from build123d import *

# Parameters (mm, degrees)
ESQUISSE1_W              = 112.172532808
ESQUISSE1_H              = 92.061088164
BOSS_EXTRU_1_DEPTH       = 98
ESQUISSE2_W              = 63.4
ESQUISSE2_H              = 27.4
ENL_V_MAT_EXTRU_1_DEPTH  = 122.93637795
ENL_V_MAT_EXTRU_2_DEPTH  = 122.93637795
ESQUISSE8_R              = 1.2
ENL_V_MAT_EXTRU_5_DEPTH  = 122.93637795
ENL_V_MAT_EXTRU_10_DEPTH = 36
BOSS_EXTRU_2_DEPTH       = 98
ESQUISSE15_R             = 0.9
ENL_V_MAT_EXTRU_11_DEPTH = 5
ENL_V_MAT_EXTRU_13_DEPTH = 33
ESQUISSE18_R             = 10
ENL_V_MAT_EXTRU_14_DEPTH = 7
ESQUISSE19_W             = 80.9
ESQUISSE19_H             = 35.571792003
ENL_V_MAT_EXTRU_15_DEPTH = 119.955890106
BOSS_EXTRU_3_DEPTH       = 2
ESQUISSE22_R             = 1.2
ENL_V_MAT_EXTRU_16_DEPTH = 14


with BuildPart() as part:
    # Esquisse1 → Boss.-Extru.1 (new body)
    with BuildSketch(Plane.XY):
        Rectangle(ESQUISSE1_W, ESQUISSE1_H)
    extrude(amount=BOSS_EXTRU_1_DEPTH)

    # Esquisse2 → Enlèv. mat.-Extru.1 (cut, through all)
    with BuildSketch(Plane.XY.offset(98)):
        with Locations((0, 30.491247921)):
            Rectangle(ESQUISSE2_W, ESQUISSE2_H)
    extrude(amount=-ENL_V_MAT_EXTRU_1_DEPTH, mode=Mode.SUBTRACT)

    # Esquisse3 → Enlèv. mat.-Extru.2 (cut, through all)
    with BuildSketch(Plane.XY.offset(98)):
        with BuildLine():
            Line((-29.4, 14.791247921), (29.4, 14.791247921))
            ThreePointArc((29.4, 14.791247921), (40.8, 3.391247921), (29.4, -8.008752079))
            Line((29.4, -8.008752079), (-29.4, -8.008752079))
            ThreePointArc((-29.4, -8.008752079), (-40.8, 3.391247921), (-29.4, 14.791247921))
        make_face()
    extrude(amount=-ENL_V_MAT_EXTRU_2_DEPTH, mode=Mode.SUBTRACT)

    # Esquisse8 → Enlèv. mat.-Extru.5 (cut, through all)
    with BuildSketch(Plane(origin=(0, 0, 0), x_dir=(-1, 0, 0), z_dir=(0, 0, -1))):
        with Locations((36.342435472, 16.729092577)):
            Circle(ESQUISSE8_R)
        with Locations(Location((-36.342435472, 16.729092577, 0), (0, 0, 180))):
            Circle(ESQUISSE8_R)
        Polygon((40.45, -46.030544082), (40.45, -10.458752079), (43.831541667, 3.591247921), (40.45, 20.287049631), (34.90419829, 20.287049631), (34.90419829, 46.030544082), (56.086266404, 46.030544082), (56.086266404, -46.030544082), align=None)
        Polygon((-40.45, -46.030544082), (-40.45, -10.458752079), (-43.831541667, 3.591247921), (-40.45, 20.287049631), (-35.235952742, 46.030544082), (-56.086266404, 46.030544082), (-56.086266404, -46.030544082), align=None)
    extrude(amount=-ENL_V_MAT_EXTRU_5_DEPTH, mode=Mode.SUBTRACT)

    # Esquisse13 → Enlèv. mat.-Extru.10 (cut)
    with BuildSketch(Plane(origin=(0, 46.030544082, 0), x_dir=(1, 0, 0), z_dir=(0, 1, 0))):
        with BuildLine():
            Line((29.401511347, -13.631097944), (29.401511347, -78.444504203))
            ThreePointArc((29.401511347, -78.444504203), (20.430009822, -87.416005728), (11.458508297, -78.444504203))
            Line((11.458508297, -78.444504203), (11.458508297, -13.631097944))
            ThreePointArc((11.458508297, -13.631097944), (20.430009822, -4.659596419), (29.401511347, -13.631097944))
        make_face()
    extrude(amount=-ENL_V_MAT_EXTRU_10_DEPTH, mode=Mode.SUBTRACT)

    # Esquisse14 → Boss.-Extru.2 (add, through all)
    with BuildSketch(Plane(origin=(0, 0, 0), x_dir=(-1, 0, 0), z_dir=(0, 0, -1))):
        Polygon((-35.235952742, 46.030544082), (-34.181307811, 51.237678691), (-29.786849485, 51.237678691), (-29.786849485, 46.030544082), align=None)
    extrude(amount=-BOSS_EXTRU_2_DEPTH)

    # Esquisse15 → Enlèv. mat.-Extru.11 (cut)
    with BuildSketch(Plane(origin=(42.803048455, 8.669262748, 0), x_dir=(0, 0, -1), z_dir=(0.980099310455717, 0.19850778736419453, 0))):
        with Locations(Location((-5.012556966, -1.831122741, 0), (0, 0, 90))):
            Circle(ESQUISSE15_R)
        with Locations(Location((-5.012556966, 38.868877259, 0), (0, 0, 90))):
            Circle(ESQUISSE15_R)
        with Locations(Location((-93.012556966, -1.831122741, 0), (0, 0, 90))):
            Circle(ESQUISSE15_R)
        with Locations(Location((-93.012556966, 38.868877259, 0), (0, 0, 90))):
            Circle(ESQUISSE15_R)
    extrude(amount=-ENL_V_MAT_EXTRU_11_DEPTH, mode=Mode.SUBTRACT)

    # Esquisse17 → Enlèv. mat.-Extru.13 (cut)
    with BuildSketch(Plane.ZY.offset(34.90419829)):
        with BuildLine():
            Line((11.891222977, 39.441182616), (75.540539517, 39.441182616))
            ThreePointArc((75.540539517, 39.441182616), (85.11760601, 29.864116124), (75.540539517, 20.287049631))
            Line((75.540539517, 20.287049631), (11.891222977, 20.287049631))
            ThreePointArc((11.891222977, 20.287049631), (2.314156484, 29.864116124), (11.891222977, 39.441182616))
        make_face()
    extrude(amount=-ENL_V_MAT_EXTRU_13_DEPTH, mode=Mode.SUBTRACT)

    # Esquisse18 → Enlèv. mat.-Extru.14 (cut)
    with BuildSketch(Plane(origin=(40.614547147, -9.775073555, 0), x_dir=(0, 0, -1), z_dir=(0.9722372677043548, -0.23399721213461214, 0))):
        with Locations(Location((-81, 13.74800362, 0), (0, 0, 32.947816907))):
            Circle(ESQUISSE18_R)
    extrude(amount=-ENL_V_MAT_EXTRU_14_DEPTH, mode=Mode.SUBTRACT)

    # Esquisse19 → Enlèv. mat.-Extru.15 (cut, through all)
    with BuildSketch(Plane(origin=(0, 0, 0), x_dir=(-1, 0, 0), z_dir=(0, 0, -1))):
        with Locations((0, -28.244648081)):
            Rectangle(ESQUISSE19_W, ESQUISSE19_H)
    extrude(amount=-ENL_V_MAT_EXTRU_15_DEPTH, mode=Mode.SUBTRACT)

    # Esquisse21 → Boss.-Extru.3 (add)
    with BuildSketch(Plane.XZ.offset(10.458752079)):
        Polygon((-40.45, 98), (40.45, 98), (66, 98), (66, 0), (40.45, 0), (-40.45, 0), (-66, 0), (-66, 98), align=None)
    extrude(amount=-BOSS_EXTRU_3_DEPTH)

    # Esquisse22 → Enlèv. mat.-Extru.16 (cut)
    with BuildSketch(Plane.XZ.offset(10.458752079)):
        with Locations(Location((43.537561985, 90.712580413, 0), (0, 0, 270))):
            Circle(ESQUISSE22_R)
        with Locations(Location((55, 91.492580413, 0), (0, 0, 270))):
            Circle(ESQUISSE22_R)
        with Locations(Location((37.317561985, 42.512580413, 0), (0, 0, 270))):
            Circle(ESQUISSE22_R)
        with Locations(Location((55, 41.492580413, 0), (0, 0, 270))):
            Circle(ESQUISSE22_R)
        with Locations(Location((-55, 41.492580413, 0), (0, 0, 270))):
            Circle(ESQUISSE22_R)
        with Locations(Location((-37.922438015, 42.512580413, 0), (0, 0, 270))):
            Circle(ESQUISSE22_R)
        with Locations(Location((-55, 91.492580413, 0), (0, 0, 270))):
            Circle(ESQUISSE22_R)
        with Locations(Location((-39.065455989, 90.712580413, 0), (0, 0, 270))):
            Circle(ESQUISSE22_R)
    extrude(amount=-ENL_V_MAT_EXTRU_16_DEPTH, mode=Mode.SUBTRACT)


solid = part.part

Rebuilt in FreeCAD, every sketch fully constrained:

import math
import FreeCAD as App
import Part
import Sketcher

doc = App.newDocument("Part")
body = doc.addObject("PartDesign::Body", "Body")

sketch1 = body.newObject("Sketcher::SketchObject", "Sketch")
sketch1.AttachmentSupport = (doc.getObject("XY_Plane"), [""])
sketch1.MapMode = "FlatFace"
sketch1.addGeometry(Part.LineSegment(App.Vector(-56, 46, 0), App.Vector(-56, -46, 0)), False)
sketch1.addGeometry(Part.LineSegment(App.Vector(-56, -46, 0), App.Vector(56, -46, 0)), False)
sketch1.addGeometry(Part.LineSegment(App.Vector(56, -46, 0), App.Vector(56, 46, 0)), False)
sketch1.addGeometry(Part.LineSegment(App.Vector(56, 46, 0), App.Vector(-56, 46, 0)), False)
sketch1.addConstraint(Sketcher.Constraint("Coincident", 0, 2, 1, 1))
sketch1.addConstraint(Sketcher.Constraint("Coincident", 1, 2, 2, 1))
sketch1.addConstraint(Sketcher.Constraint("Coincident", 2, 2, 3, 1))
sketch1.addConstraint(Sketcher.Constraint("Coincident", 3, 2, 0, 1))
sketch1.addConstraint(Sketcher.Constraint("Vertical", 0))
sketch1.addConstraint(Sketcher.Constraint("Horizontal", 1))
sketch1.addConstraint(Sketcher.Constraint("Vertical", 2))
sketch1.addConstraint(Sketcher.Constraint("Horizontal", 3))
sketch1.addConstraint(Sketcher.Constraint("Symmetric", 0, 2, 2, 2, -1, 1))
sketch1.addConstraint(Sketcher.Constraint("DistanceY", 0, 2, 0, 1, 92.061088))
sketch1.addConstraint(Sketcher.Constraint("DistanceX", 1, 1, 1, 2, 112.172533))
pad1 = body.newObject("PartDesign::Pad", "Pad")
pad1.Profile = sketch1
pad1.Length = 98

sketch2 = body.newObject("Sketcher::SketchObject", "Sketch001")
sketch2.AttachmentSupport = (doc.getObject("XY_Plane"), [""])
sketch2.MapMode = "FlatFace"
sketch2.AttachmentOffset = App.Placement(App.Vector(0, 0, 98), App.Rotation())
sketch2.addGeometry(Part.LineSegment(App.Vector(-32, 44, 0), App.Vector(-32, 17, 0)), False)
sketch2.addGeometry(Part.LineSegment(App.Vector(-32, 17, 0), App.Vector(32, 17, 0)), False)
sketch2.addGeometry(Part.LineSegment(App.Vector(32, 17, 0), App.Vector(32, 44, 0)), False)
sketch2.addGeometry(Part.LineSegment(App.Vector(32, 44, 0), App.Vector(-32, 44, 0)), False)
sketch2.addConstraint(Sketcher.Constraint("Coincident", 0, 2, 1, 1))
sketch2.addConstraint(Sketcher.Constraint("Coincident", 1, 2, 2, 1))
sketch2.addConstraint(Sketcher.Constraint("Coincident", 2, 2, 3, 1))
sketch2.addConstraint(Sketcher.Constraint("Coincident", 3, 2, 0, 1))
sketch2.addConstraint(Sketcher.Constraint("Vertical", 0))
sketch2.addConstraint(Sketcher.Constraint("Horizontal", 1))
sketch2.addConstraint(Sketcher.Constraint("Vertical", 2))
sketch2.addConstraint(Sketcher.Constraint("Horizontal", 3))
sketch2.addConstraint(Sketcher.Constraint("DistanceX", 1, 1, 1, 2, 63.4))
sketch2.addConstraint(Sketcher.Constraint("DistanceY", 0, 2, 0, 1, 27.4))
sketch2.addConstraint(Sketcher.Constraint("DistanceX", 0, 2, -1, 1, 31.7))
sketch2.addConstraint(Sketcher.Constraint("DistanceY", -1, 1, 0, 2, 16.791248))
pocket1 = body.newObject("PartDesign::Pocket", "Pocket")
pocket1.Profile = sketch2
pocket1.Type = "ThroughAll"

sketch3 = body.newObject("Sketcher::SketchObject", "Sketch002")
sketch3.AttachmentSupport = (doc.getObject("XY_Plane"), [""])
sketch3.MapMode = "FlatFace"
sketch3.AttachmentOffset = App.Placement(App.Vector(0, 0, 98), App.Rotation())
sketch3.addGeometry(Part.LineSegment(App.Vector(29, 15, 0), App.Vector(-29, 15, 0)), False)
sketch3.addGeometry(Part.ArcOfCircle(Part.Circle(App.Vector(-29, 3, 0), App.Vector(0, 0, 1), 11), math.radians(90), math.radians(270)), False)
sketch3.addGeometry(Part.LineSegment(App.Vector(-29, -8, 0), App.Vector(29, -8, 0)), False)
sketch3.addGeometry(Part.ArcOfCircle(Part.Circle(App.Vector(29, 3, 0), App.Vector(0, 0, 1), 11), math.radians(-90), math.radians(90)), False)
sketch3.addConstraint(Sketcher.Constraint("Tangent", 0, 2, 1, 1))
sketch3.addConstraint(Sketcher.Constraint("Tangent", 1, 2, 2, 1))
sketch3.addConstraint(Sketcher.Constraint("Tangent", 2, 2, 3, 1))
sketch3.addConstraint(Sketcher.Constraint("Tangent", 3, 2, 0, 1))
sketch3.addConstraint(Sketcher.Constraint("Horizontal", 0))
sketch3.addConstraint(Sketcher.Constraint("Horizontal", 2))
sketch3.addConstraint(Sketcher.Constraint("Radius", 1, 11.4))
sketch3.addConstraint(Sketcher.Constraint("DistanceX", 0, 2, 0, 1, 58.8))
sketch3.addConstraint(Sketcher.Constraint("DistanceX", 1, 3, -1, 1, 29.4))
sketch3.addConstraint(Sketcher.Constraint("DistanceY", -1, 1, 1, 3, 3.391248))
pocket2 = body.newObject("PartDesign::Pocket", "Pocket001")
pocket2.Profile = sketch3
pocket2.Type = "ThroughAll"

sketch4 = body.newObject("Sketcher::SketchObject", "Sketch003")
sketch4.AttachmentSupport = (doc.getObject("XY_Plane"), [""])
sketch4.MapMode = "FlatFace"
sketch4.addGeometry(Part.Circle(App.Vector(-36.3, 16.7, 0), App.Vector(0, 0, 1), 1.2), False)
sketch4.addGeometry(Part.Circle(App.Vector(36.3, 16.7, 0), App.Vector(0, 0, 1), 1.2), False)
sketch4.addGeometry(Part.LineSegment(App.Vector(-40.5, -10.5, 0), App.Vector(-40.5, -46, 0)), False)
sketch4.addGeometry(Part.LineSegment(App.Vector(-40.5, -46, 0), App.Vector(-56.1, -46, 0)), False)
sketch4.addGeometry(Part.LineSegment(App.Vector(-56.1, -46, 0), App.Vector(-56.1, 46, 0)), False)
sketch4.addGeometry(Part.LineSegment(App.Vector(-56.1, 46, 0), App.Vector(-34.9, 46, 0)), False)
sketch4.addGeometry(Part.LineSegment(App.Vector(-34.9, 46, 0), App.Vector(-34.9, 20.3, 0)), False)
sketch4.addGeometry(Part.LineSegment(App.Vector(-34.9, 20.3, 0), App.Vector(-40.5, 20.3, 0)), False)
sketch4.addGeometry(Part.LineSegment(App.Vector(-40.5, 20.3, 0), App.Vector(-43.8, 3.6, 0)), False)
sketch4.addGeometry(Part.LineSegment(App.Vector(-43.8, 3.6, 0), App.Vector(-40.5, -10.5, 0)), False)
sketch4.addGeometry(Part.LineSegment(App.Vector(40.5, -46, 0), App.Vector(40.5, -10.5, 0)), False)
sketch4.addGeometry(Part.LineSegment(App.Vector(40.5, -10.5, 0), App.Vector(43.8, 3.6, 0)), False)
sketch4.addGeometry(Part.LineSegment(App.Vector(43.8, 3.6, 0), App.Vector(40.5, 20.3, 0)), False)
sketch4.addGeometry(Part.LineSegment(App.Vector(40.5, 20.3, 0), App.Vector(35.2, 46, 0)), False)
sketch4.addGeometry(Part.LineSegment(App.Vector(35.2, 46, 0), App.Vector(56.1, 46, 0)), False)
sketch4.addGeometry(Part.LineSegment(App.Vector(56.1, 46, 0), App.Vector(56.1, -46, 0)), False)
sketch4.addGeometry(Part.LineSegment(App.Vector(56.1, -46, 0), App.Vector(40.5, -46, 0)), False)
sketch4.addConstraint(Sketcher.Constraint("Coincident", 2, 2, 3, 1))
sketch4.addConstraint(Sketcher.Constraint("Coincident", 3, 2, 4, 1))
sketch4.addConstraint(Sketcher.Constraint("Coincident", 4, 2, 5, 1))
sketch4.addConstraint(Sketcher.Constraint("Coincident", 5, 2, 6, 1))
sketch4.addConstraint(Sketcher.Constraint("Coincident", 6, 2, 7, 1))
sketch4.addConstraint(Sketcher.Constraint("Coincident", 7, 2, 8, 1))
sketch4.addConstraint(Sketcher.Constraint("Coincident", 8, 2, 9, 1))
sketch4.addConstraint(Sketcher.Constraint("Coincident", 9, 2, 2, 1))
sketch4.addConstraint(Sketcher.Constraint("Coincident", 10, 2, 11, 1))
sketch4.addConstraint(Sketcher.Constraint("Coincident", 11, 2, 12, 1))
sketch4.addConstraint(Sketcher.Constraint("Coincident", 12, 2, 13, 1))
sketch4.addConstraint(Sketcher.Constraint("Coincident", 13, 2, 14, 1))
sketch4.addConstraint(Sketcher.Constraint("Coincident", 14, 2, 15, 1))
sketch4.addConstraint(Sketcher.Constraint("Coincident", 15, 2, 16, 1))
sketch4.addConstraint(Sketcher.Constraint("Coincident", 16, 2, 10, 1))
sketch4.addConstraint(Sketcher.Constraint("Vertical", 2))
sketch4.addConstraint(Sketcher.Constraint("Horizontal", 3))
sketch4.addConstraint(Sketcher.Constraint("Vertical", 4))
sketch4.addConstraint(Sketcher.Constraint("Horizontal", 5))
sketch4.addConstraint(Sketcher.Constraint("Vertical", 6))
sketch4.addConstraint(Sketcher.Constraint("Horizontal", 7))
sketch4.addConstraint(Sketcher.Constraint("Vertical", 10))
sketch4.addConstraint(Sketcher.Constraint("Horizontal", 14))
sketch4.addConstraint(Sketcher.Constraint("Vertical", 15))
sketch4.addConstraint(Sketcher.Constraint("Horizontal", 16))
sketch4.addConstraint(Sketcher.Constraint("Equal", 0, 1))
sketch4.addConstraint(Sketcher.Constraint("Symmetric", 3, 2, 14, 2, -1, 1))
sketch4.addConstraint(Sketcher.Constraint("Symmetric", 0, 3, 1, 3, -2))
sketch4.addConstraint(Sketcher.Constraint("Symmetric", 9, 2, 10, 2, -2))
sketch4.addConstraint(Sketcher.Constraint("Symmetric", 8, 2, 11, 2, -2))
sketch4.addConstraint(Sketcher.Constraint("Symmetric", 7, 2, 12, 2, -2))
sketch4.addConstraint(Sketcher.Constraint("Parallel", 12, 13))
sketch4.addConstraint(Sketcher.Constraint("Horizontal", 5, 2, 13, 2))
sketch4.addConstraint(Sketcher.Constraint("Horizontal", 3, 2, 15, 2))
sketch4.addConstraint(Sketcher.Constraint("Vertical", 2, 2, 7, 2))
sketch4.addConstraint(Sketcher.Constraint("Diameter", 0, 2.4))
sketch4.addConstraint(Sketcher.Constraint("DistanceX", 9, 2, 10, 2, 80.9))
sketch4.addConstraint(Sketcher.Constraint("DistanceY", 9, 2, 8, 2, 14.05))
sketch4.addConstraint(Sketcher.Constraint("DistanceX", 7, 2, 7, 1, 5.545802))
sketch4.addConstraint(Sketcher.Constraint("DistanceX", 5, 1, 5, 2, 21.182068))
sketch4.addConstraint(Sketcher.Constraint("DistanceY", 4, 1, 4, 2, 92.061088))
sketch4.addConstraint(Sketcher.Constraint("DistanceX", 3, 2, 1, 3, 92.428702))
sketch4.addConstraint(Sketcher.Constraint("DistanceY", 8, 2, 7, 2, 16.695802))
sketch4.addConstraint(Sketcher.Constraint("Distance", 13, 26.26621))
sketch4.addConstraint(Sketcher.Constraint("DistanceX", 14, 1, 14, 2, 20.850314))
sketch4.addConstraint(Sketcher.Constraint("DistanceY", 0, 3, 4, 2, 29.301452))
pocket3 = body.newObject("PartDesign::Pocket", "Pocket002")
pocket3.Profile = sketch4
pocket3.Type = "ThroughAll"
pocket3.Reversed = True

sketch5 = body.newObject("Sketcher::SketchObject", "Sketch004")
sketch5.AttachmentSupport = (doc.getObject("XZ_Plane"), [""])
sketch5.MapMode = "FlatFace"
sketch5.AttachmentOffset = App.Placement(App.Vector(0, 0, -46.030544), App.Rotation())
sketch5.addGeometry(Part.LineSegment(App.Vector(29, 78, 0), App.Vector(29, 14, 0)), False)
sketch5.addGeometry(Part.ArcOfCircle(Part.Circle(App.Vector(20, 14, 0), App.Vector(0, 0, 1), 9), math.radians(180), math.radians(360)), False)
sketch5.addGeometry(Part.LineSegment(App.Vector(11, 14, 0), App.Vector(11, 78, 0)), False)
sketch5.addGeometry(Part.ArcOfCircle(Part.Circle(App.Vector(20, 78, 0), App.Vector(0, 0, 1), 9), math.radians(0), math.radians(180)), False)
sketch5.addConstraint(Sketcher.Constraint("Tangent", 0, 2, 1, 2))
sketch5.addConstraint(Sketcher.Constraint("Tangent", 1, 1, 2, 1))
sketch5.addConstraint(Sketcher.Constraint("Tangent", 2, 2, 3, 2))
sketch5.addConstraint(Sketcher.Constraint("Tangent", 3, 1, 0, 1))
sketch5.addConstraint(Sketcher.Constraint("Vertical", 0))
sketch5.addConstraint(Sketcher.Constraint("Vertical", 2))
sketch5.addConstraint(Sketcher.Constraint("Radius", 1, 8.971502))
sketch5.addConstraint(Sketcher.Constraint("DistanceY", 0, 2, 0, 1, 64.813406))
sketch5.addConstraint(Sketcher.Constraint("DistanceX", -1, 1, 1, 3, 20.43001))
sketch5.addConstraint(Sketcher.Constraint("DistanceY", -1, 1, 1, 3, 13.631098))
pocket4 = body.newObject("PartDesign::Pocket", "Pocket003")
pocket4.Profile = sketch5
pocket4.Length = 36
pocket4.Reversed = True

sketch6 = body.newObject("Sketcher::SketchObject", "Sketch005")
sketch6.AttachmentSupport = (doc.getObject("XY_Plane"), [""])
sketch6.MapMode = "FlatFace"
sketch6.addGeometry(Part.LineSegment(App.Vector(34.2, 51.2, 0), App.Vector(35.2, 46, 0)), False)
sketch6.addGeometry(Part.LineSegment(App.Vector(35.2, 46, 0), App.Vector(29.8, 46, 0)), False)
sketch6.addGeometry(Part.LineSegment(App.Vector(29.8, 46, 0), App.Vector(29.8, 51.2, 0)), False)
sketch6.addGeometry(Part.LineSegment(App.Vector(29.8, 51.2, 0), App.Vector(34.2, 51.2, 0)), False)
sketch6.addConstraint(Sketcher.Constraint("Coincident", 0, 2, 1, 1))
sketch6.addConstraint(Sketcher.Constraint("Coincident", 1, 2, 2, 1))
sketch6.addConstraint(Sketcher.Constraint("Coincident", 2, 2, 3, 1))
sketch6.addConstraint(Sketcher.Constraint("Coincident", 3, 2, 0, 1))
sketch6.addConstraint(Sketcher.Constraint("Horizontal", 1))
sketch6.addConstraint(Sketcher.Constraint("Vertical", 2))
sketch6.addConstraint(Sketcher.Constraint("Horizontal", 3))
sketch6.addConstraint(Sketcher.Constraint("DistanceX", 3, 1, 3, 2, 4.394458))
sketch6.addConstraint(Sketcher.Constraint("DistanceX", 1, 2, 1, 1, 5.449103))
sketch6.addConstraint(Sketcher.Constraint("DistanceY", 2, 1, 2, 2, 5.207135))
sketch6.addConstraint(Sketcher.Constraint("DistanceX", -1, 1, 1, 2, 29.786849))
sketch6.addConstraint(Sketcher.Constraint("DistanceY", -1, 1, 2, 2, 51.237679))
pad2 = body.newObject("PartDesign::Pad", "Pad001")
pad2.Profile = sketch6
pad2.Length = 98

sketch7 = body.newObject("Sketcher::SketchObject", "Sketch006")
sketch7.Placement = App.Placement(App.Vector(42.803048, 8.669263, 0), App.Rotation(App.Vector(0, 0, -1), App.Vector(-0.198507787, 0.98009931, 0), App.Vector(0.98009931, 0.198507787, 0), "ZXY"))
sketch7.addGeometry(Part.Circle(App.Vector(-5, -1.8, 0), App.Vector(0, 0, 1), 0.9), False)
sketch7.addGeometry(Part.Circle(App.Vector(-5, 38.9, 0), App.Vector(0, 0, 1), 0.9), False)
sketch7.addGeometry(Part.Circle(App.Vector(-93, -1.8, 0), App.Vector(0, 0, 1), 0.9), False)
sketch7.addGeometry(Part.Circle(App.Vector(-93, 38.9, 0), App.Vector(0, 0, 1), 0.9), False)
sketch7.addConstraint(Sketcher.Constraint("Equal", 0, 1))
sketch7.addConstraint(Sketcher.Constraint("Equal", 1, 2))
sketch7.addConstraint(Sketcher.Constraint("Equal", 2, 3))
sketch7.addConstraint(Sketcher.Constraint("Horizontal", 0, 3, 2, 3))
sketch7.addConstraint(Sketcher.Constraint("Horizontal", 1, 3, 3, 3))
sketch7.addConstraint(Sketcher.Constraint("Vertical", 0, 3, 1, 3))
sketch7.addConstraint(Sketcher.Constraint("Vertical", 2, 3, 3, 3))
sketch7.addConstraint(Sketcher.Constraint("Diameter", 0, 1.8))
sketch7.addConstraint(Sketcher.Constraint("DistanceX", 2, 3, 0, 3, 88.0))
sketch7.addConstraint(Sketcher.Constraint("DistanceY", 0, 3, 1, 3, 40.7))
sketch7.addConstraint(Sketcher.Constraint("DistanceX", 0, 3, -1, 1, 5.012557))
sketch7.addConstraint(Sketcher.Constraint("DistanceY", 0, 3, -1, 1, 1.831123))
pocket5 = body.newObject("PartDesign::Pocket", "Pocket004")
pocket5.Profile = sketch7
pocket5.Length = 5

sketch8 = body.newObject("Sketcher::SketchObject", "Sketch007")
sketch8.AttachmentSupport = (doc.getObject("YZ_Plane"), [""])
sketch8.MapMode = "FlatFace"
sketch8.AttachmentOffset = App.Placement(App.Vector(0, 0, -34.904198), App.Rotation())
sketch8.addGeometry(Part.LineSegment(App.Vector(39, 76, 0), App.Vector(39, 12, 0)), False)
sketch8.addGeometry(Part.ArcOfCircle(Part.Circle(App.Vector(30, 12, 0), App.Vector(0, 0, 1), 10), math.radians(180), math.radians(360)), False)
sketch8.addGeometry(Part.LineSegment(App.Vector(20, 12, 0), App.Vector(20, 76, 0)), False)
sketch8.addGeometry(Part.ArcOfCircle(Part.Circle(App.Vector(30, 76, 0), App.Vector(0, 0, 1), 10), math.radians(0), math.radians(180)), False)
sketch8.addConstraint(Sketcher.Constraint("Tangent", 0, 2, 1, 2))
sketch8.addConstraint(Sketcher.Constraint("Tangent", 1, 1, 2, 1))
sketch8.addConstraint(Sketcher.Constraint("Tangent", 2, 2, 3, 2))
sketch8.addConstraint(Sketcher.Constraint("Tangent", 3, 1, 0, 1))
sketch8.addConstraint(Sketcher.Constraint("Vertical", 0))
sketch8.addConstraint(Sketcher.Constraint("Vertical", 2))
sketch8.addConstraint(Sketcher.Constraint("Radius", 1, 9.577066))
sketch8.addConstraint(Sketcher.Constraint("DistanceY", 0, 2, 0, 1, 63.649317))
sketch8.addConstraint(Sketcher.Constraint("DistanceY", -1, 1, 3, 3, 75.54054))
sketch8.addConstraint(Sketcher.Constraint("DistanceX", -1, 1, 1, 1, 20.28705))
pocket6 = body.newObject("PartDesign::Pocket", "Pocket005")
pocket6.Profile = sketch8
pocket6.Length = 33
pocket6.Reversed = True

sketch9 = body.newObject("Sketcher::SketchObject", "Sketch008")
sketch9.Placement = App.Placement(App.Vector(40.614547, -9.775074, 0), App.Rotation(App.Vector(0, 0, -1), App.Vector(0.233997212, 0.972237268, 0), App.Vector(0.972237268, -0.233997212, 0), "ZXY"))
sketch9.addGeometry(Part.Circle(App.Vector(-81, 14, 0), App.Vector(0, 0, 1), 10), False)
sketch9.addConstraint(Sketcher.Constraint("Diameter", 0, 20.0))
sketch9.addConstraint(Sketcher.Constraint("DistanceX", 0, 3, -1, 1, 81.0))
sketch9.addConstraint(Sketcher.Constraint("DistanceY", -1, 1, 0, 3, 13.748004))
pocket7 = body.newObject("PartDesign::Pocket", "Pocket006")
pocket7.Profile = sketch9
pocket7.Length = 7

sketch10 = body.newObject("Sketcher::SketchObject", "Sketch009")
sketch10.AttachmentSupport = (doc.getObject("XY_Plane"), [""])
sketch10.MapMode = "FlatFace"
sketch10.addGeometry(Part.LineSegment(App.Vector(40, -10, 0), App.Vector(40, -46, 0)), False)
sketch10.addGeometry(Part.LineSegment(App.Vector(40, -46, 0), App.Vector(-40, -46, 0)), False)
sketch10.addGeometry(Part.LineSegment(App.Vector(-40, -46, 0), App.Vector(-40, -10, 0)), False)
sketch10.addGeometry(Part.LineSegment(App.Vector(-40, -10, 0), App.Vector(40, -10, 0)), False)
sketch10.addConstraint(Sketcher.Constraint("Coincident", 0, 2, 1, 1))
sketch10.addConstraint(Sketcher.Constraint("Coincident", 1, 2, 2, 1))
sketch10.addConstraint(Sketcher.Constraint("Coincident", 2, 2, 3, 1))
sketch10.addConstraint(Sketcher.Constraint("Coincident", 3, 2, 0, 1))
sketch10.addConstraint(Sketcher.Constraint("Vertical", 0))
sketch10.addConstraint(Sketcher.Constraint("Horizontal", 1))
sketch10.addConstraint(Sketcher.Constraint("Vertical", 2))
sketch10.addConstraint(Sketcher.Constraint("Horizontal", 3))
sketch10.addConstraint(Sketcher.Constraint("DistanceX", 1, 2, 1, 1, 80.9))
sketch10.addConstraint(Sketcher.Constraint("DistanceX", -1, 1, 0, 2, 40.45))
sketch10.addConstraint(Sketcher.Constraint("DistanceY", 0, 2, 0, 1, 35.571792))
sketch10.addConstraint(Sketcher.Constraint("DistanceY", 0, 2, -1, 1, 46.030544))
pocket8 = body.newObject("PartDesign::Pocket", "Pocket007")
pocket8.Profile = sketch10
pocket8.Type = "ThroughAll"
pocket8.Reversed = True

sketch11 = body.newObject("Sketcher::SketchObject", "Sketch010")
sketch11.AttachmentSupport = (doc.getObject("XZ_Plane"), [""])
sketch11.MapMode = "FlatFace"
sketch11.AttachmentOffset = App.Placement(App.Vector(0, 0, 10.458752), App.Rotation())
sketch11.addGeometry(Part.LineSegment(App.Vector(66, 98, 0), App.Vector(-66, 98, 0)), False)
sketch11.addGeometry(Part.LineSegment(App.Vector(-66, 98, 0), App.Vector(-66, 0, 0)), False)
sketch11.addGeometry(Part.LineSegment(App.Vector(-66, 0, 0), App.Vector(66, 0, 0)), False)
sketch11.addGeometry(Part.LineSegment(App.Vector(66, 0, 0), App.Vector(66, 98, 0)), False)
sketch11.addConstraint(Sketcher.Constraint("Coincident", 0, 2, 1, 1))
sketch11.addConstraint(Sketcher.Constraint("Coincident", 1, 2, 2, 1))
sketch11.addConstraint(Sketcher.Constraint("Coincident", 2, 2, 3, 1))
sketch11.addConstraint(Sketcher.Constraint("Coincident", 3, 2, 0, 1))
sketch11.addConstraint(Sketcher.Constraint("Horizontal", 0))
sketch11.addConstraint(Sketcher.Constraint("Vertical", 1))
sketch11.addConstraint(Sketcher.Constraint("Horizontal", 2))
sketch11.addConstraint(Sketcher.Constraint("Vertical", 3))
sketch11.addConstraint(Sketcher.Constraint("Symmetric", 1, 2, 2, 2, -1, 1))
sketch11.addConstraint(Sketcher.Constraint("DistanceX", 0, 2, 0, 1, 132.0))
sketch11.addConstraint(Sketcher.Constraint("DistanceY", 1, 2, 1, 1, 98.0))
pad3 = body.newObject("PartDesign::Pad", "Pad002")
pad3.Profile = sketch11
pad3.Length = 2
pad3.Reversed = True

sketch12 = body.newObject("Sketcher::SketchObject", "Sketch011")
sketch12.AttachmentSupport = (doc.getObject("XZ_Plane"), [""])
sketch12.MapMode = "FlatFace"
sketch12.AttachmentOffset = App.Placement(App.Vector(0, 0, 10.458752), App.Rotation())
sketch12.addGeometry(Part.Circle(App.Vector(43.5, 90.7, 0), App.Vector(0, 0, 1), 1.2), False)
sketch12.addGeometry(Part.Circle(App.Vector(55, 91.5, 0), App.Vector(0, 0, 1), 1.2), False)
sketch12.addGeometry(Part.Circle(App.Vector(37.3, 42.5, 0), App.Vector(0, 0, 1), 1.2), False)
sketch12.addGeometry(Part.Circle(App.Vector(55, 41.5, 0), App.Vector(0, 0, 1), 1.2), False)
sketch12.addGeometry(Part.Circle(App.Vector(-55, 41.5, 0), App.Vector(0, 0, 1), 1.2), False)
sketch12.addGeometry(Part.Circle(App.Vector(-37.9, 42.5, 0), App.Vector(0, 0, 1), 1.2), False)
sketch12.addGeometry(Part.Circle(App.Vector(-55, 91.5, 0), App.Vector(0, 0, 1), 1.2), False)
sketch12.addGeometry(Part.Circle(App.Vector(-39.1, 90.7, 0), App.Vector(0, 0, 1), 1.2), False)
sketch12.addConstraint(Sketcher.Constraint("Equal", 0, 1))
sketch12.addConstraint(Sketcher.Constraint("Equal", 1, 2))
sketch12.addConstraint(Sketcher.Constraint("Equal", 2, 3))
sketch12.addConstraint(Sketcher.Constraint("Equal", 3, 4))
sketch12.addConstraint(Sketcher.Constraint("Equal", 4, 5))
sketch12.addConstraint(Sketcher.Constraint("Equal", 5, 6))
sketch12.addConstraint(Sketcher.Constraint("Equal", 6, 7))
sketch12.addConstraint(Sketcher.Constraint("Symmetric", 3, 3, 4, 3, -2))
sketch12.addConstraint(Sketcher.Constraint("Symmetric", 1, 3, 6, 3, -2))
sketch12.addConstraint(Sketcher.Constraint("Horizontal", 2, 3, 5, 3))
sketch12.addConstraint(Sketcher.Constraint("Horizontal", 0, 3, 7, 3))
sketch12.addConstraint(Sketcher.Constraint("Vertical", 1, 3, 3, 3))
sketch12.addConstraint(Sketcher.Constraint("Diameter", 0, 2.4))
sketch12.addConstraint(Sketcher.Constraint("DistanceX", -1, 1, 1, 3, 55.0))
sketch12.addConstraint(Sketcher.Constraint("DistanceY", 3, 3, 1, 3, 50.0))
sketch12.addConstraint(Sketcher.Constraint("DistanceY", 2, 3, 0, 3, 48.2))
sketch12.addConstraint(Sketcher.Constraint("DistanceY", 0, 3, 1, 3, 0.78))
sketch12.addConstraint(Sketcher.Constraint("DistanceX", 2, 3, 0, 3, 6.22))
sketch12.addConstraint(Sketcher.Constraint("DistanceX", 5, 3, 2, 3, 75.24))
sketch12.addConstraint(Sketcher.Constraint("DistanceX", -1, 1, 0, 3, 43.537562))
sketch12.addConstraint(Sketcher.Constraint("DistanceY", -1, 1, 0, 3, 90.71258))
sketch12.addConstraint(Sketcher.Constraint("DistanceX", 7, 3, -1, 1, 39.065456))
pocket9 = body.newObject("PartDesign::Pocket", "Pocket008")
pocket9.Profile = sketch12
pocket9.Length = 14

doc.recompute()
